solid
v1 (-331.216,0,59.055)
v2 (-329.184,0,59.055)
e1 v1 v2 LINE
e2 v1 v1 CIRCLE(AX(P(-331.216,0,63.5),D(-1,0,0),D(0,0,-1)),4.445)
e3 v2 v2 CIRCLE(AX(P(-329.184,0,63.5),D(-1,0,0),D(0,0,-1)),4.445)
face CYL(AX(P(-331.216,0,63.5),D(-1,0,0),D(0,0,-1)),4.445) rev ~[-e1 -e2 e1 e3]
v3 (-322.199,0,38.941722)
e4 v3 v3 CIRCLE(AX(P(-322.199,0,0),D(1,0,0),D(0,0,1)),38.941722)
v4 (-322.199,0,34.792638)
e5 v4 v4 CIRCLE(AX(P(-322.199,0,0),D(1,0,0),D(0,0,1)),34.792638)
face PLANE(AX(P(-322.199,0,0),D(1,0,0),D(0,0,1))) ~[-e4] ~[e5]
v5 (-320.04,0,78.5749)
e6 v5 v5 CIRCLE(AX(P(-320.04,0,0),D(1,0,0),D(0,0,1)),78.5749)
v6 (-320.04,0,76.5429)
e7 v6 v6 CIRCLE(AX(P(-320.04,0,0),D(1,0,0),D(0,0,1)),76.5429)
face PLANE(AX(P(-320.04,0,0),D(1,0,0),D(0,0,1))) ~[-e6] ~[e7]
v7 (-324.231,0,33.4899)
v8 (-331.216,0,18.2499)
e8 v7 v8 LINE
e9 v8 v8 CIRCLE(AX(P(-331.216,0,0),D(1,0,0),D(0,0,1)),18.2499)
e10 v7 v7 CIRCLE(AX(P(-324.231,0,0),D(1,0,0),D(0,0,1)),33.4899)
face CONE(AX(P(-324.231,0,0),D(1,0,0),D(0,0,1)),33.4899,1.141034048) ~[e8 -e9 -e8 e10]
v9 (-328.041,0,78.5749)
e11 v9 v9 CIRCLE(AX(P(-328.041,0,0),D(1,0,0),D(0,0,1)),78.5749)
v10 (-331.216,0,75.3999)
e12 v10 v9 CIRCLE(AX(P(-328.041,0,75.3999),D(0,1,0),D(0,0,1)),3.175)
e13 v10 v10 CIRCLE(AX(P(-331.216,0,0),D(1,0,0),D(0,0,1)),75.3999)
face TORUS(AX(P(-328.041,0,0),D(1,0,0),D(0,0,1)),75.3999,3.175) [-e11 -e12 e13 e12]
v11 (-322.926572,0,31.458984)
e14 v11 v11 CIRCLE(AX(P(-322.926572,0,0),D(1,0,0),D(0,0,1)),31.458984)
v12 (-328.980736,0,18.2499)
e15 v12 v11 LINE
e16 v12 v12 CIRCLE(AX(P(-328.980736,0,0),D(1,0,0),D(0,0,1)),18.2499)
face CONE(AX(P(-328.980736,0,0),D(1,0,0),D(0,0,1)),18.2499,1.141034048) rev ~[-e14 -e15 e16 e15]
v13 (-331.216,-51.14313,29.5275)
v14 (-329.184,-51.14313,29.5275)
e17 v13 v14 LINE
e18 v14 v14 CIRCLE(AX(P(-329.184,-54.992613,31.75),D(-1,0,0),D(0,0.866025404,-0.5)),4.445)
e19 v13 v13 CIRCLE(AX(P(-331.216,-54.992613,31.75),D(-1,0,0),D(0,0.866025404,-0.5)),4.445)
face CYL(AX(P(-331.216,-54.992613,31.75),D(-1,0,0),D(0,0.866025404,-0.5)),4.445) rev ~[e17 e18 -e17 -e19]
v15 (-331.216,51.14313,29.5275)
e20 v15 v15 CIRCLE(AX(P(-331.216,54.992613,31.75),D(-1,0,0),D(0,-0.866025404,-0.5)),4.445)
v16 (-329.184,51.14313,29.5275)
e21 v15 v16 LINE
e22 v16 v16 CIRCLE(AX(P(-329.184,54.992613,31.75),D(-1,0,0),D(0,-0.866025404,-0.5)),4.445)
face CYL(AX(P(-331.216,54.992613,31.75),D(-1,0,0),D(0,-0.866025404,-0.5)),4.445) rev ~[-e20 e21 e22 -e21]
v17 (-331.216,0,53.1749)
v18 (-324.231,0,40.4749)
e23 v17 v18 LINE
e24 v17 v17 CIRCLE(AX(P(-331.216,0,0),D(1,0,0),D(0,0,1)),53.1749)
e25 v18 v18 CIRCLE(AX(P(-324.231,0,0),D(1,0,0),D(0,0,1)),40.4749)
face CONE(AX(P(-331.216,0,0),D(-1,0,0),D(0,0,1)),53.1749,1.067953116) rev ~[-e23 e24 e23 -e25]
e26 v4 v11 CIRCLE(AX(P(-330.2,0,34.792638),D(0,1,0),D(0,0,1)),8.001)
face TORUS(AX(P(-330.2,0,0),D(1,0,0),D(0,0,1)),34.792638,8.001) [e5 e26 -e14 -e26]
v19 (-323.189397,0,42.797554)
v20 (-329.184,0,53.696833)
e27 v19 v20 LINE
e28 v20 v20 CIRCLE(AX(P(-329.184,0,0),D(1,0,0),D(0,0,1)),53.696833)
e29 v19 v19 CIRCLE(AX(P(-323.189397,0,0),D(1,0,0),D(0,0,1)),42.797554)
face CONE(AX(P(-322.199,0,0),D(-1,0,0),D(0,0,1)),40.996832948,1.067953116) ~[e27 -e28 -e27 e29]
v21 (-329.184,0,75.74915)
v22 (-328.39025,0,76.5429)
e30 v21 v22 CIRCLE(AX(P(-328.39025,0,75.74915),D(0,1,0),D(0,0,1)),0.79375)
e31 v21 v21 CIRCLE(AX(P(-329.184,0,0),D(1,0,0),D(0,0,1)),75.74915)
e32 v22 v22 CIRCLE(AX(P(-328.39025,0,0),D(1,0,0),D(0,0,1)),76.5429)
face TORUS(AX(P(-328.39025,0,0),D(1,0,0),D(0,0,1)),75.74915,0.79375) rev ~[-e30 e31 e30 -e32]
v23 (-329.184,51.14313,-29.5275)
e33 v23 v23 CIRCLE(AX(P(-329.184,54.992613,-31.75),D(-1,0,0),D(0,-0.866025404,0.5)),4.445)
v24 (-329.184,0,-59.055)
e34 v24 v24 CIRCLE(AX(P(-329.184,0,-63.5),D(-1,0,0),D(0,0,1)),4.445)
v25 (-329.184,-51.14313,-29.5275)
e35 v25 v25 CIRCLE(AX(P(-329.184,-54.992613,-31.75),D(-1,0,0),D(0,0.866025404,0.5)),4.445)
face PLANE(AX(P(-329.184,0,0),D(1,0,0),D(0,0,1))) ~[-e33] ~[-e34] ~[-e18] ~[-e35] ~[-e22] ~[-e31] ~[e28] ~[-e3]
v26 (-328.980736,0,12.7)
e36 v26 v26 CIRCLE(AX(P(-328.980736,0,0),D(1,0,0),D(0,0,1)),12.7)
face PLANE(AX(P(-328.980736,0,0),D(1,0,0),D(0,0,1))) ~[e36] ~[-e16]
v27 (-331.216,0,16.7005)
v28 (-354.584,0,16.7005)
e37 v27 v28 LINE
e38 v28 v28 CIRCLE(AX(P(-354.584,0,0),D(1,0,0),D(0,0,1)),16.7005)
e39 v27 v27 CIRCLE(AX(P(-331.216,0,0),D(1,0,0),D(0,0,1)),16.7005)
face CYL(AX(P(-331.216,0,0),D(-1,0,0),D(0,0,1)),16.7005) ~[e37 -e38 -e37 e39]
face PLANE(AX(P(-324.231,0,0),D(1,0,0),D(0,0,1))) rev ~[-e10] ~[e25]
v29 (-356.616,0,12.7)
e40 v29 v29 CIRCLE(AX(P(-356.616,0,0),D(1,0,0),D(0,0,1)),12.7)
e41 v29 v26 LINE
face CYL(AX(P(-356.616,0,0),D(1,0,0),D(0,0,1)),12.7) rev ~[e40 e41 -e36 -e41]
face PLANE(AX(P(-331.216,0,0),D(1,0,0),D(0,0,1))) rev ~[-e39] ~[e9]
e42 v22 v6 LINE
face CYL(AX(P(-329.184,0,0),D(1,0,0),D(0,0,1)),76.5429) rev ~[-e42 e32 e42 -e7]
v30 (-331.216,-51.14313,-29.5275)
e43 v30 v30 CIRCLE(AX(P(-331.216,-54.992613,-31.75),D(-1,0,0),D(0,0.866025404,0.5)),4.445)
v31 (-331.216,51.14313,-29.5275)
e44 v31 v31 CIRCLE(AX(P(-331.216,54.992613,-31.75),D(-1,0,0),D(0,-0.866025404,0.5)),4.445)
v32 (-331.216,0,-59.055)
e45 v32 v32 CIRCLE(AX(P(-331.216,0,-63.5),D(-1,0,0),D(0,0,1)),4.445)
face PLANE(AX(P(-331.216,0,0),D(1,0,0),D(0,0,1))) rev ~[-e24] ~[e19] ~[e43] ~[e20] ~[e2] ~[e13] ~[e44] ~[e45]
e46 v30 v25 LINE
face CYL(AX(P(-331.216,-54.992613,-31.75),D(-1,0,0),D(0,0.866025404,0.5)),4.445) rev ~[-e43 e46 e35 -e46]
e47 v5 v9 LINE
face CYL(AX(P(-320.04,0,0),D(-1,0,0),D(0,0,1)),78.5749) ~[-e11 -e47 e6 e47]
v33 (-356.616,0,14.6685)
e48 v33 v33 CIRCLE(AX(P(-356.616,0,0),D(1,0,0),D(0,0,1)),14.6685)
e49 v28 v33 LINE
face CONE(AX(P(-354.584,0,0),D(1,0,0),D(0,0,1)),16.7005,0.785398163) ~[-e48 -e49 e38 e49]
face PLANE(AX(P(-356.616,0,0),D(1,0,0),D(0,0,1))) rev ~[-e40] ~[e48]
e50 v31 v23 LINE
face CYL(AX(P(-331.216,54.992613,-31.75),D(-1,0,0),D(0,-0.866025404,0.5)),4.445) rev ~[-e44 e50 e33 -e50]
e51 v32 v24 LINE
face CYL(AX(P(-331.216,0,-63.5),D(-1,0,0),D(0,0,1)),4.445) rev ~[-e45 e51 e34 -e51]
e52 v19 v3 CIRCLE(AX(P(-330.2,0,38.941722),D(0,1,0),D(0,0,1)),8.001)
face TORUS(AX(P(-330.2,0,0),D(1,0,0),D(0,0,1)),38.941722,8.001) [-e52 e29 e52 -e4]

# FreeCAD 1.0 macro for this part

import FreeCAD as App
import Part
import Sketcher
Q = App.Units.Quantity


def edges_at(feature, points):
    """Names of the edges that pass closest to the given points."""
    edges = feature.Shape.Edges
    near = lambda p: min(range(len(edges)), key=lambda i: edges[i].distToShape(Part.Vertex(*p))[0])
    return sorted({f"Edge{near(p) + 1}" for p in points})


def add_polygon(sketch, points):
    """Adds a closed chain of lines whose ends are joined by coincident constraints."""
    first, n = sketch.GeometryCount, len(points)
    for a, b in zip(points, points[1:] + points[:1]):
        sketch.addGeometry(Part.LineSegment(App.Vector(*a, 0), App.Vector(*b, 0)), False)
    for i in range(n):
        sketch.addConstraint(Sketcher.Constraint("Coincident", first + i, 2, first + (i + 1) % n, 1))

doc = App.newDocument("Part")
body = doc.addObject("PartDesign::Body", "Body")

sketch1 = body.newObject("Sketcher::SketchObject", "Sketch")
sketch1.AttachmentSupport = (doc.getObject("XZ_Plane"), [""])
sketch1.MapMode = "FlatFace"
add_polygon(sketch1, [(0, 78.6), (-11.2, 78.6), (-11.2, 53.2), (-4.2, 40.5), (-4.2, 33.5), (-11.2, 18.2), (-11.2, 16.7), (-36.6, 16.7), (-36.6, 12.7), (-8.9, 12.7), (-8.9, 18.2), (-2.2, 33), (-2.2, 41), (-9.1, 53.7), (-9.1, 76.5), (0, 76.5)])
sketch1.addConstraint([
    Sketcher.Constraint("Horizontal", 0),
    Sketcher.Constraint("Vertical", 1),
    Sketcher.Constraint("Vertical", 3),
    Sketcher.Constraint("Vertical", 5),
    Sketcher.Constraint("Horizontal", 6),
    Sketcher.Constraint("Vertical", 7),
    Sketcher.Constraint("Horizontal", 8),
    Sketcher.Constraint("Vertical", 9),
    Sketcher.Constraint("Vertical", 11),
    Sketcher.Constraint("Vertical", 13),
    Sketcher.Constraint("Horizontal", 14),
    Sketcher.Constraint("Vertical", 15),
    Sketcher.Constraint("PointOnObject", 14, 2, -2),
    Sketcher.Constraint("Parallel", 4, 10),
    Sketcher.Constraint("Parallel", 2, 12),
    Sketcher.Constraint("Horizontal", 4, 2, 9, 2),
    Sketcher.Constraint("Vertical", 1, 2, 4, 2),
    Sketcher.Constraint("Equal", 6, 1),
    Sketcher.Constraint("Equal", 2, 12),
    Sketcher.Constraint("DistanceX", 6, 2, 6, 1, Q("1 in")),
    Sketcher.Constraint("DistanceX", 0, 2, 0, 1, Q("0.44 in")),
    Sketcher.Constraint("DistanceX", 14, 1, 14, 2, Q("0.36 in")),
    Sketcher.Constraint("DistanceY", 15, 1, 15, 2, Q("0.08 in")),
    Sketcher.Constraint("DistanceY", -1, 1, 7, 2, Q("0.5 in")),
    Sketcher.Constraint("DistanceY", 2, 2, 1, 2, Q("0.5 in")),
    Sketcher.Constraint("DistanceY", 4, 2, 3, 2, Q("0.6 in")),
    Sketcher.Constraint("DistanceY", 3, 2, 3, 1, Q("0.275 in")),
    Sketcher.Constraint("DistanceY", 5, 2, 5, 1, Q("0.061 in")),
    Sketcher.Constraint("DistanceY", 7, 2, 7, 1, Q("0.1575 in")),
    Sketcher.Constraint("DistanceX", 2, 2, -1, 1, Q("0.165 in")),
    Sketcher.Constraint("DistanceY", 11, 1, 11, 2, 7.950418),
    Sketcher.Constraint("DistanceX", 8, 1, 8, 2, 27.635264),
])
revolution = body.newObject("PartDesign::Revolution", "Revolution")
revolution.Profile = sketch1
revolution.ReferenceAxis = (sketch1, ["H_Axis"])
revolution.Angle = 360

sketch2 = body.newObject("Sketcher::SketchObject", "Sketch001")
sketch2.AttachmentSupport = (doc.getObject("YZ_Plane"), [""])
sketch2.MapMode = "FlatFace"
sketch2.AttachmentOffset = App.Placement(App.Vector(0, 0, -0.44 * 25.4), App.Rotation())
sketch2.addGeometry(Part.Circle(App.Vector(0, 63.5, 0), App.Vector(0, 0, 1), 4.4), False)
sketch2.addConstraint([
    Sketcher.Constraint("PointOnObject", 0, 3, -2),
    Sketcher.Constraint("Diameter", 0, Q("0.35 in")),
    Sketcher.Constraint("DistanceY", -1, 1, 0, 3, Q("2.5 in")),
])
pocket1 = body.newObject("PartDesign::Pocket", "Pocket")
pocket1.Profile = sketch2
pocket1.Type = "ThroughAll"
pocket1.Reversed = True
doc.recompute()

polarpattern = body.newObject("PartDesign::PolarPattern", "PolarPattern")
polarpattern.Originals = [pocket1]
polarpattern.Axis = (doc.getObject("X_Axis"), [""])
polarpattern.Angle = 360
polarpattern.Occurrences = 6
body.Tip = polarpattern
doc.recompute()

chamfer = body.newObject("PartDesign::Chamfer", "Chamfer")
chamfer.Base = (polarpattern, edges_at(polarpattern, [(-36.576, 0, -16.701)]))
chamfer.Size = Q("0.08 in")
doc.recompute()

fillet = body.newObject("PartDesign::Fillet", "Fillet")
fillet.Base = (chamfer, edges_at(chamfer, [(-11.176, 0, -78.575)]))
fillet.Radius = Q("0.125 in")
doc.recompute()

fillet2 = body.newObject("PartDesign::Fillet", "Fillet001")
fillet2.Base = (fillet, edges_at(fillet, [(-9.144, 0, -76.543)]))
fillet2.Radius = Q("0.03125 in")
doc.recompute()

fillet3 = body.newObject("PartDesign::Fillet", "Fillet002")
fillet3.Base = (fillet2, edges_at(fillet2, [(-2.159, 0, -33.046), (-2.159, 0, -40.997)]))
fillet3.Radius = Q("0.315 in")
body2 = doc.addObject("PartDesign::Body", "Body001")
doc.recompute()

body.Placement = App.Placement(App.Vector(-320.04, 0, 0), App.Rotation(App.Vector(0, 0, 1), 0))
boolean = body2.newObject("PartDesign::Boolean", "Boolean")
boolean.Type = "Fuse"
boolean.addObjects([body])

doc.recompute()
